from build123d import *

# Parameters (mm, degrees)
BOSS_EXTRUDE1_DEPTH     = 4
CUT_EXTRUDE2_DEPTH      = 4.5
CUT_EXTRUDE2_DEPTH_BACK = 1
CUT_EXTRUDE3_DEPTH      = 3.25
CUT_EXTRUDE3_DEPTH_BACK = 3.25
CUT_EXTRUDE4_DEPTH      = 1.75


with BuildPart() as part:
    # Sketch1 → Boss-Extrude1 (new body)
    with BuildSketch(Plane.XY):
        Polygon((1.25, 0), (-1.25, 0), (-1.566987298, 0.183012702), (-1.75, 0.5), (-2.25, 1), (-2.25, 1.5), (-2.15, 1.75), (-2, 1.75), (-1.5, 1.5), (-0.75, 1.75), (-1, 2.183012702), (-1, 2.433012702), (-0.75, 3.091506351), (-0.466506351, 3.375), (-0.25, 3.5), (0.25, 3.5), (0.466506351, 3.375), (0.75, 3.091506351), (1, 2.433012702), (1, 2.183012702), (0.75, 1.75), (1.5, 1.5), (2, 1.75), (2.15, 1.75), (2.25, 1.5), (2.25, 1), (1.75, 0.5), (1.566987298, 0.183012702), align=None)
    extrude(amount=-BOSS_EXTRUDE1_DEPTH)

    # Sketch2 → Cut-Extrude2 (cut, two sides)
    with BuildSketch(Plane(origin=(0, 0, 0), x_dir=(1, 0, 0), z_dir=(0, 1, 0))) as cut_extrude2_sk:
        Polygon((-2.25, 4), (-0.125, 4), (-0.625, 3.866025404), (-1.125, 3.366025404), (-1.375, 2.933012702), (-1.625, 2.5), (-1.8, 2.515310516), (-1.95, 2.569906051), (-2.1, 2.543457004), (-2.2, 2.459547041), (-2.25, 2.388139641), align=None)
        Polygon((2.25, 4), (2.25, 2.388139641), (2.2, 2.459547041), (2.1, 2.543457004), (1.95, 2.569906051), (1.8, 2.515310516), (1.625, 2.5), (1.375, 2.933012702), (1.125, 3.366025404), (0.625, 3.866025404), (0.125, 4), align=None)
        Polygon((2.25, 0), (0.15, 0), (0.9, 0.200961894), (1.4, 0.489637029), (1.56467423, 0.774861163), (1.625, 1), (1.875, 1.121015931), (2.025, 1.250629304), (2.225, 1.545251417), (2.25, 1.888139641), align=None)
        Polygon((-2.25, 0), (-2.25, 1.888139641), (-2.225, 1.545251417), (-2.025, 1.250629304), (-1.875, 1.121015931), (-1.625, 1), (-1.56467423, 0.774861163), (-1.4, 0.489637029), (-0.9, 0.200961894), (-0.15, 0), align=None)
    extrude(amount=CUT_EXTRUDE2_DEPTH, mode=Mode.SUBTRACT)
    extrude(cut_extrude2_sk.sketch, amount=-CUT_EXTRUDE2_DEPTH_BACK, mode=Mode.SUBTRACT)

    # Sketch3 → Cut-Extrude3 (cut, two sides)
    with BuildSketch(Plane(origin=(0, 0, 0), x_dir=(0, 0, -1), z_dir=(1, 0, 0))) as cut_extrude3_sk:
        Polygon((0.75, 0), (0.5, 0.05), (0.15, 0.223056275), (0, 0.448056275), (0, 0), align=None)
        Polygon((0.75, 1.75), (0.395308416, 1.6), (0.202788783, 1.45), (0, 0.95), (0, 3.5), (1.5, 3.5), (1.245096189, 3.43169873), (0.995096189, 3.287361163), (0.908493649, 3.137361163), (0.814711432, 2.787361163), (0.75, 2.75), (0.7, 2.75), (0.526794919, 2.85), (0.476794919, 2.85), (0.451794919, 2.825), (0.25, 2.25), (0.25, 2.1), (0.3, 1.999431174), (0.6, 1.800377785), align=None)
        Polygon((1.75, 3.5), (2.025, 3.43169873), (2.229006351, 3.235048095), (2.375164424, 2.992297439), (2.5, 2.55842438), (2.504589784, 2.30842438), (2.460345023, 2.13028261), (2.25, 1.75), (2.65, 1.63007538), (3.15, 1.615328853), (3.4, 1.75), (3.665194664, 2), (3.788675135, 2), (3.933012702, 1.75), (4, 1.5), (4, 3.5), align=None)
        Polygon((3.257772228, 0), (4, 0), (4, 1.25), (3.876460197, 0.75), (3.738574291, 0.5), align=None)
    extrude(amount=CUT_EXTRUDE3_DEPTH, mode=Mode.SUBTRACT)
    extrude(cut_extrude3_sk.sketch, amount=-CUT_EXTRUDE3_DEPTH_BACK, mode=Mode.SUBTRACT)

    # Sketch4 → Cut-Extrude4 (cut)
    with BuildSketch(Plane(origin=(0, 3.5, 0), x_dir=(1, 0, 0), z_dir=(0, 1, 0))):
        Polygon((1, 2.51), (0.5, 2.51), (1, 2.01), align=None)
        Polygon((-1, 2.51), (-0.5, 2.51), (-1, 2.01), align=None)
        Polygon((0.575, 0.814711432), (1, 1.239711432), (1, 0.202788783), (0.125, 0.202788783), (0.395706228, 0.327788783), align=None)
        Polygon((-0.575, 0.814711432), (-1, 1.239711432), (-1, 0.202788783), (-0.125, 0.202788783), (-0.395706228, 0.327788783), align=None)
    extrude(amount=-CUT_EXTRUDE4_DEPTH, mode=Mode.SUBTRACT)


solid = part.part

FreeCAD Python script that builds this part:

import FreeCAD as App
import Part
import Sketcher
from FreeCAD import Vector
Q = App.Units.Quantity

doc = App.newDocument("Part")
body = doc.addObject("PartDesign::Body", "Body")

sketch1 = body.newObject("Sketcher::SketchObject", "Sketch")
sketch1.AttachmentSupport = (doc.getObject("XY_Plane"), [""])
sketch1.MapMode = "FlatFace"
sketch1.addGeometry(Part.LineSegment(Vector(-1.25, 0, 0), Vector(1.25, 0, 0)), False)
sketch1.addGeometry(Part.LineSegment(Vector(1.25, 0, 0), Vector(1.566987, 0.183013, 0)), False)
sketch1.addGeometry(Part.LineSegment(Vector(1.566987, 0.183013, 0), Vector(1.75, 0.5, 0)), False)
sketch1.addGeometry(Part.LineSegment(Vector(1.75, 0.5, 0), Vector(2.25, 1, 0)), False)
sketch1.addGeometry(Part.LineSegment(Vector(2.25, 1, 0), Vector(2.25, 1.5, 0)), False)
sketch1.addGeometry(Part.LineSegment(Vector(2.25, 1.5, 0), Vector(2.15, 1.75, 0)), False)
sketch1.addGeometry(Part.LineSegment(Vector(2.15, 1.75, 0), Vector(2, 1.75, 0)), False)
sketch1.addGeometry(Part.LineSegment(Vector(2, 1.75, 0), Vector(1.5, 1.5, 0)), False)
sketch1.addGeometry(Part.LineSegment(Vector(1.5, 1.5, 0), Vector(0.75, 1.75, 0)), False)
sketch1.addGeometry(Part.LineSegment(Vector(0.75, 1.75, 0), Vector(1, 2.183013, 0)), False)
sketch1.addGeometry(Part.LineSegment(Vector(1, 2.183013, 0), Vector(1, 2.433013, 0)), False)
sketch1.addGeometry(Part.LineSegment(Vector(1, 2.433013, 0), Vector(0.75, 3.091506, 0)), False)
sketch1.addGeometry(Part.LineSegment(Vector(0.75, 3.091506, 0), Vector(0.466506, 3.375, 0)), False)
sketch1.addGeometry(Part.LineSegment(Vector(0.466506, 3.375, 0), Vector(0.25, 3.5, 0)), False)
sketch1.addGeometry(Part.LineSegment(Vector(0.25, 3.5, 0), Vector(-0.25, 3.5, 0)), False)
sketch1.addGeometry(Part.LineSegment(Vector(-0.25, 3.5, 0), Vector(-0.466506, 3.375, 0)), False)
sketch1.addGeometry(Part.LineSegment(Vector(-0.466506, 3.375, 0), Vector(-0.75, 3.091506, 0)), False)
sketch1.addGeometry(Part.LineSegment(Vector(-0.75, 3.091506, 0), Vector(-1, 2.433013, 0)), False)
sketch1.addGeometry(Part.LineSegment(Vector(-1, 2.433013, 0), Vector(-1, 2.183013, 0)), False)
sketch1.addGeometry(Part.LineSegment(Vector(-1, 2.183013, 0), Vector(-0.75, 1.75, 0)), False)
sketch1.addGeometry(Part.LineSegment(Vector(-0.75, 1.75, 0), Vector(-1.5, 1.5, 0)), False)
sketch1.addGeometry(Part.LineSegment(Vector(-1.5, 1.5, 0), Vector(-2, 1.75, 0)), False)
sketch1.addGeometry(Part.LineSegment(Vector(-2, 1.75, 0), Vector(-2.15, 1.75, 0)), False)
sketch1.addGeometry(Part.LineSegment(Vector(-2.15, 1.75, 0), Vector(-2.25, 1.5, 0)), False)
sketch1.addGeometry(Part.LineSegment(Vector(-2.25, 1.5, 0), Vector(-2.25, 1, 0)), False)
sketch1.addGeometry(Part.LineSegment(Vector(-2.25, 1, 0), Vector(-1.75, 0.5, 0)), False)
sketch1.addGeometry(Part.LineSegment(Vector(-1.75, 0.5, 0), Vector(-1.566987, 0.183013, 0)), False)
sketch1.addGeometry(Part.LineSegment(Vector(-1.566987, 0.183013, 0), Vector(-1.25, 0, 0)), False)
sketch1.addConstraint(Sketcher.Constraint("Coincident", 0, 2, 1, 1))
sketch1.addConstraint(Sketcher.Constraint("Coincident", 1, 2, 2, 1))
sketch1.addConstraint(Sketcher.Constraint("Coincident", 2, 2, 3, 1))
sketch1.addConstraint(Sketcher.Constraint("Coincident", 3, 2, 4, 1))
sketch1.addConstraint(Sketcher.Constraint("Coincident", 4, 2, 5, 1))
sketch1.addConstraint(Sketcher.Constraint("Coincident", 5, 2, 6, 1))
sketch1.addConstraint(Sketcher.Constraint("Coincident", 6, 2, 7, 1))
sketch1.addConstraint(Sketcher.Constraint("Coincident", 7, 2, 8, 1))
sketch1.addConstraint(Sketcher.Constraint("Coincident", 8, 2, 9, 1))
sketch1.addConstraint(Sketcher.Constraint("Coincident", 9, 2, 10, 1))
sketch1.addConstraint(Sketcher.Constraint("Coincident", 10, 2, 11, 1))
sketch1.addConstraint(Sketcher.Constraint("Coincident", 11, 2, 12, 1))
sketch1.addConstraint(Sketcher.Constraint("Coincident", 12, 2, 13, 1))
sketch1.addConstraint(Sketcher.Constraint("Coincident", 13, 2, 14, 1))
sketch1.addConstraint(Sketcher.Constraint("Coincident", 14, 2, 15, 1))
sketch1.addConstraint(Sketcher.Constraint("Coincident", 15, 2, 16, 1))
sketch1.addConstraint(Sketcher.Constraint("Coincident", 16, 2, 17, 1))
sketch1.addConstraint(Sketcher.Constraint("Coincident", 17, 2, 18, 1))
sketch1.addConstraint(Sketcher.Constraint("Coincident", 18, 2, 19, 1))
sketch1.addConstraint(Sketcher.Constraint("Coincident", 19, 2, 20, 1))
sketch1.addConstraint(Sketcher.Constraint("Coincident", 20, 2, 21, 1))
sketch1.addConstraint(Sketcher.Constraint("Coincident", 21, 2, 22, 1))
sketch1.addConstraint(Sketcher.Constraint("Coincident", 22, 2, 23, 1))
sketch1.addConstraint(Sketcher.Constraint("Coincident", 23, 2, 24, 1))
sketch1.addConstraint(Sketcher.Constraint("Coincident", 24, 2, 25, 1))
sketch1.addConstraint(Sketcher.Constraint("Coincident", 25, 2, 26, 1))
sketch1.addConstraint(Sketcher.Constraint("Coincident", 26, 2, 27, 1))
sketch1.addConstraint(Sketcher.Constraint("Coincident", 27, 2, 0, 1))
sketch1.addConstraint(Sketcher.Constraint("Horizontal", 0))
sketch1.addConstraint(Sketcher.Constraint("Vertical", 4))
sketch1.addConstraint(Sketcher.Constraint("Horizontal", 6))
sketch1.addConstraint(Sketcher.Constraint("Vertical", 10))
sketch1.addConstraint(Sketcher.Constraint("Horizontal", 14))
sketch1.addConstraint(Sketcher.Constraint("Vertical", 18))
sketch1.addConstraint(Sketcher.Constraint("Horizontal", 22))
sketch1.addConstraint(Sketcher.Constraint("Vertical", 24))
sketch1.addConstraint(Sketcher.Constraint("Symmetric", 0, 2, 27, 2, -1, 1))
sketch1.addConstraint(Sketcher.Constraint("Symmetric", 12, 2, 15, 2, -2))
sketch1.addConstraint(Sketcher.Constraint("Symmetric", 11, 2, 16, 2, -2))
sketch1.addConstraint(Sketcher.Constraint("Symmetric", 10, 2, 17, 2, -2))
sketch1.addConstraint(Sketcher.Constraint("Symmetric", 8, 2, 19, 2, -2))
sketch1.addConstraint(Sketcher.Constraint("Symmetric", 7, 2, 20, 2, -2))
sketch1.addConstraint(Sketcher.Constraint("Symmetric", 6, 2, 21, 2, -2))
sketch1.addConstraint(Sketcher.Constraint("Symmetric", 4, 2, 23, 2, -2))
sketch1.addConstraint(Sketcher.Constraint("Symmetric", 2, 2, 25, 2, -2))
sketch1.addConstraint(Sketcher.Constraint("Symmetric", 1, 2, 26, 2, -2))
sketch1.addConstraint(Sketcher.Constraint("Parallel", 2, 9))
sketch1.addConstraint(Sketcher.Constraint("Perpendicular", 3, 12))
sketch1.addConstraint(Sketcher.Constraint("Perpendicular", 9, 13))
sketch1.addConstraint(Sketcher.Constraint("Parallel", 1, 15))
sketch1.addConstraint(Sketcher.Constraint("Perpendicular", 12, 16))
sketch1.addConstraint(Sketcher.Constraint("Perpendicular", 15, 19))
sketch1.addConstraint(Sketcher.Constraint("Perpendicular", 16, 25))
sketch1.addConstraint(Sketcher.Constraint("Parallel", 19, 26))
sketch1.addConstraint(Sketcher.Constraint("Horizontal", 4, 2, 7, 2))
sketch1.addConstraint(Sketcher.Constraint("Horizontal", 6, 2, 8, 2))
sketch1.addConstraint(Sketcher.Constraint("Vertical", 8, 2, 11, 2))
sketch1.addConstraint(Sketcher.Constraint("Equal", 6, 22))
sketch1.addConstraint(Sketcher.Constraint("Equal", 14, 4))
sketch1.addConstraint(Sketcher.Constraint("Equal", 1, 2))
sketch1.addConstraint(Sketcher.Constraint("Angle", 1, Q("30 deg")))
sketch1.addConstraint(Sketcher.Constraint("DistanceX", 0, 1, 0, 2, Q("2.5 mm")))
sketch1.addConstraint(Sketcher.Constraint("DistanceX", 14, 2, 14, 1, Q("0.5 mm")))
sketch1.addConstraint(Sketcher.Constraint("DistanceY", -1, 1, 3, 2, Q("1 mm")))
sketch1.addConstraint(Sketcher.Constraint("DistanceX", -1, 1, 6, 2, Q("2 mm")))
sketch1.addConstraint(Sketcher.Constraint("DistanceX", -1, 1, 9, 2, Q("1 mm")))
sketch1.addConstraint(Sketcher.Constraint("DistanceY", 2, 2, 4, 2, Q("1 mm")))
sketch1.addConstraint(Sketcher.Constraint("DistanceX", 8, 2, 2, 2, Q("1 mm")))
sketch1.addConstraint(Sketcher.Constraint("DistanceX", 6, 2, 6, 1, Q("0.15 mm")))
sketch1.addConstraint(Sketcher.Constraint("DistanceY", 10, 1, 10, 2, Q("0.25 mm")))
sketch1.addConstraint(Sketcher.Constraint("DistanceX", -1, 1, 7, 2, Q("1.5 mm")))
sketch1.addConstraint(Sketcher.Constraint("DistanceY", -1, 1, 13, 2, Q("3.5 mm")))
sketch1.addConstraint(Sketcher.Constraint("Distance", 13, Q("0.25 mm")))
sketch1.addConstraint(Sketcher.Constraint("DistanceY", -1, 1, 5, 2, Q("1.75 mm")))
pad1 = body.newObject("PartDesign::Pad", "Pad")
pad1.Profile = sketch1
pad1.Length = 4
pad1.Reversed = True

sketch2 = body.newObject("Sketcher::SketchObject", "Sketch001")
sketch2.AttachmentSupport = (doc.getObject("XZ_Plane"), [""])
sketch2.MapMode = "FlatFace"
sketch2.addGeometry(Part.LineSegment(Vector(-0.125, -4, 0), Vector(-2.25, -4, 0)), False)
sketch2.addGeometry(Part.LineSegment(Vector(-2.25, -4, 0), Vector(-2.25, -2.38814, 0)), False)
sketch2.addGeometry(Part.LineSegment(Vector(-2.25, -2.38814, 0), Vector(-2.2, -2.459547, 0)), False)
sketch2.addGeometry(Part.LineSegment(Vector(-2.2, -2.459547, 0), Vector(-2.1, -2.543457, 0)), False)
sketch2.addGeometry(Part.LineSegment(Vector(-2.1, -2.543457, 0), Vector(-1.95, -2.569906, 0)), False)
sketch2.addGeometry(Part.LineSegment(Vector(-1.95, -2.569906, 0), Vector(-1.8, -2.515311, 0)), False)
sketch2.addGeometry(Part.LineSegment(Vector(-1.8, -2.515311, 0), Vector(-1.625, -2.5, 0)), False)
sketch2.addGeometry(Part.LineSegment(Vector(-1.625, -2.5, 0), Vector(-1.125, -3.366025, 0)), False)
sketch2.addGeometry(Part.LineSegment(Vector(-1.125, -3.366025, 0), Vector(-0.625, -3.866025, 0)), False)
sketch2.addGeometry(Part.LineSegment(Vector(-0.625, -3.866025, 0), Vector(-0.125, -4, 0)), False)
sketch2.addGeometry(Part.LineSegment(Vector(2.25, -2.38814, 0), Vector(2.25, -4, 0)), False)
sketch2.addGeometry(Part.LineSegment(Vector(2.25, -4, 0), Vector(0.125, -4, 0)), False)
sketch2.addGeometry(Part.LineSegment(Vector(0.125, -4, 0), Vector(0.625, -3.866025, 0)), False)
sketch2.addGeometry(Part.LineSegment(Vector(0.625, -3.866025, 0), Vector(1.125, -3.366025, 0)), False)
sketch2.addGeometry(Part.LineSegment(Vector(1.125, -3.366025, 0), Vector(1.625, -2.5, 0)), False)
sketch2.addGeometry(Part.LineSegment(Vector(1.625, -2.5, 0), Vector(1.8, -2.515311, 0)), False)
sketch2.addGeometry(Part.LineSegment(Vector(1.8, -2.515311, 0), Vector(1.95, -2.569906, 0)), False)
sketch2.addGeometry(Part.LineSegment(Vector(1.95, -2.569906, 0), Vector(2.1, -2.543457, 0)), False)
sketch2.addGeometry(Part.LineSegment(Vector(2.1, -2.543457, 0), Vector(2.2, -2.459547, 0)), False)
sketch2.addGeometry(Part.LineSegment(Vector(2.2, -2.459547, 0), Vector(2.25, -2.38814, 0)), False)
sketch2.addGeometry(Part.LineSegment(Vector(0.15, 0, 0), Vector(2.25, 0, 0)), False)
sketch2.addGeometry(Part.LineSegment(Vector(2.25, 0, 0), Vector(2.25, -1.88814, 0)), False)
sketch2.addGeometry(Part.LineSegment(Vector(2.25, -1.88814, 0), Vector(2.225, -1.545251, 0)), False)
sketch2.addGeometry(Part.LineSegment(Vector(2.225, -1.545251, 0), Vector(2.025, -1.250629, 0)), False)
sketch2.addGeometry(Part.LineSegment(Vector(2.025, -1.250629, 0), Vector(1.875, -1.121016, 0)), False)
sketch2.addGeometry(Part.LineSegment(Vector(1.875, -1.121016, 0), Vector(1.625, -1, 0)), False)
sketch2.addGeometry(Part.LineSegment(Vector(1.625, -1, 0), Vector(1.564674, -0.774861, 0)), False)
sketch2.addGeometry(Part.LineSegment(Vector(1.564674, -0.774861, 0), Vector(1.4, -0.489637, 0)), False)
sketch2.addGeometry(Part.LineSegment(Vector(1.4, -0.489637, 0), Vector(0.9, -0.200962, 0)), False)
sketch2.addGeometry(Part.LineSegment(Vector(0.9, -0.200962, 0), Vector(0.15, 0, 0)), False)
sketch2.addGeometry(Part.LineSegment(Vector(-2.25, -1.88814, 0), Vector(-2.25, 0, 0)), False)
sketch2.addGeometry(Part.LineSegment(Vector(-2.25, 0, 0), Vector(-0.15, 0, 0)), False)
sketch2.addGeometry(Part.LineSegment(Vector(-0.15, 0, 0), Vector(-0.9, -0.200962, 0)), False)
sketch2.addGeometry(Part.LineSegment(Vector(-0.9, -0.200962, 0), Vector(-1.4, -0.489637, 0)), False)
sketch2.addGeometry(Part.LineSegment(Vector(-1.4, -0.489637, 0), Vector(-1.564674, -0.774861, 0)), False)
sketch2.addGeometry(Part.LineSegment(Vector(-1.564674, -0.774861, 0), Vector(-1.625, -1, 0)), False)
sketch2.addGeometry(Part.LineSegment(Vector(-1.625, -1, 0), Vector(-1.875, -1.121016, 0)), False)
sketch2.addGeometry(Part.LineSegment(Vector(-1.875, -1.121016, 0), Vector(-2.025, -1.250629, 0)), False)
sketch2.addGeometry(Part.LineSegment(Vector(-2.025, -1.250629, 0), Vector(-2.225, -1.545251, 0)), False)
sketch2.addGeometry(Part.LineSegment(Vector(-2.225, -1.545251, 0), Vector(-2.25, -1.88814, 0)), False)
sketch2.addConstraint(Sketcher.Constraint("Coincident", 0, 2, 1, 1))
sketch2.addConstraint(Sketcher.Constraint("Coincident", 1, 2, 2, 1))
sketch2.addConstraint(Sketcher.Constraint("Coincident", 2, 2, 3, 1))
sketch2.addConstraint(Sketcher.Constraint("Coincident", 3, 2, 4, 1))
sketch2.addConstraint(Sketcher.Constraint("Coincident", 4, 2, 5, 1))
sketch2.addConstraint(Sketcher.Constraint("Coincident", 5, 2, 6, 1))
sketch2.addConstraint(Sketcher.Constraint("Coincident", 6, 2, 7, 1))
sketch2.addConstraint(Sketcher.Constraint("Coincident", 7, 2, 8, 1))
sketch2.addConstraint(Sketcher.Constraint("Coincident", 8, 2, 9, 1))
sketch2.addConstraint(Sketcher.Constraint("Coincident", 9, 2, 0, 1))
sketch2.addConstraint(Sketcher.Constraint("Coincident", 10, 2, 11, 1))
sketch2.addConstraint(Sketcher.Constraint("Coincident", 11, 2, 12, 1))
sketch2.addConstraint(Sketcher.Constraint("Coincident", 12, 2, 13, 1))
sketch2.addConstraint(Sketcher.Constraint("Coincident", 13, 2, 14, 1))
sketch2.addConstraint(Sketcher.Constraint("Coincident", 14, 2, 15, 1))
sketch2.addConstraint(Sketcher.Constraint("Coincident", 15, 2, 16, 1))
sketch2.addConstraint(Sketcher.Constraint("Coincident", 16, 2, 17, 1))
sketch2.addConstraint(Sketcher.Constraint("Coincident", 17, 2, 18, 1))
sketch2.addConstraint(Sketcher.Constraint("Coincident", 18, 2, 19, 1))
sketch2.addConstraint(Sketcher.Constraint("Coincident", 19, 2, 10, 1))
sketch2.addConstraint(Sketcher.Constraint("Coincident", 20, 2, 21, 1))
sketch2.addConstraint(Sketcher.Constraint("Coincident", 21, 2, 22, 1))
sketch2.addConstraint(Sketcher.Constraint("Coincident", 22, 2, 23, 1))
sketch2.addConstraint(Sketcher.Constraint("Coincident", 23, 2, 24, 1))
sketch2.addConstraint(Sketcher.Constraint("Coincident", 24, 2, 25, 1))
sketch2.addConstraint(Sketcher.Constraint("Coincident", 25, 2, 26, 1))
sketch2.addConstraint(Sketcher.Constraint("Coincident", 26, 2, 27, 1))
sketch2.addConstraint(Sketcher.Constraint("Coincident", 27, 2, 28, 1))
sketch2.addConstraint(Sketcher.Constraint("Coincident", 28, 2, 29, 1))
sketch2.addConstraint(Sketcher.Constraint("Coincident", 29, 2, 20, 1))
sketch2.addConstraint(Sketcher.Constraint("Coincident", 30, 2, 31, 1))
sketch2.addConstraint(Sketcher.Constraint("Coincident", 31, 2, 32, 1))
sketch2.addConstraint(Sketcher.Constraint("Coincident", 32, 2, 33, 1))
sketch2.addConstraint(Sketcher.Constraint("Coincident", 33, 2, 34, 1))
sketch2.addConstraint(Sketcher.Constraint("Coincident", 34, 2, 35, 1))
sketch2.addConstraint(Sketcher.Constraint("Coincident", 35, 2, 36, 1))
sketch2.addConstraint(Sketcher.Constraint("Coincident", 36, 2, 37, 1))
sketch2.addConstraint(Sketcher.Constraint("Coincident", 37, 2, 38, 1))
sketch2.addConstraint(Sketcher.Constraint("Coincident", 38, 2, 39, 1))
sketch2.addConstraint(Sketcher.Constraint("Coincident", 39, 2, 30, 1))
sketch2.addConstraint(Sketcher.Constraint("Horizontal", 0))
sketch2.addConstraint(Sketcher.Constraint("Vertical", 1))
sketch2.addConstraint(Sketcher.Constraint("Vertical", 10))
sketch2.addConstraint(Sketcher.Constraint("Horizontal", 11))
sketch2.addConstraint(Sketcher.Constraint("Horizontal", 20))
sketch2.addConstraint(Sketcher.Constraint("Vertical", 21))
sketch2.addConstraint(Sketcher.Constraint("Vertical", 30))
sketch2.addConstraint(Sketcher.Constraint("Horizontal", 31))
sketch2.addConstraint(Sketcher.Constraint("Symmetric", 20, 2, 30, 2, -1, 1))
sketch2.addConstraint(Sketcher.Constraint("Symmetric", 0, 2, 10, 2, -2))
sketch2.addConstraint(Sketcher.Constraint("Symmetric", 8, 2, 12, 2, -2))
sketch2.addConstraint(Sketcher.Constraint("Symmetric", 7, 2, 13, 2, -2))
sketch2.addConstraint(Sketcher.Constraint("Symmetric", 6, 2, 14, 2, -2))
sketch2.addConstraint(Sketcher.Constraint("Symmetric", 5, 2, 15, 2, -2))
sketch2.addConstraint(Sketcher.Constraint("Symmetric", 4, 2, 16, 2, -2))
sketch2.addConstraint(Sketcher.Constraint("Symmetric", 3, 2, 17, 2, -2))
sketch2.addConstraint(Sketcher.Constraint("Symmetric", 2, 2, 18, 2, -2))
sketch2.addConstraint(Sketcher.Constraint("Symmetric", 29, 2, 31, 2, -2))
sketch2.addConstraint(Sketcher.Constraint("Symmetric", 28, 2, 32, 2, -2))
sketch2.addConstraint(Sketcher.Constraint("Symmetric", 27, 2, 33, 2, -2))
sketch2.addConstraint(Sketcher.Constraint("Symmetric", 26, 2, 34, 2, -2))
sketch2.addConstraint(Sketcher.Constraint("Symmetric", 25, 2, 35, 2, -2))
sketch2.addConstraint(Sketcher.Constraint("Symmetric", 24, 2, 36, 2, -2))
sketch2.addConstraint(Sketcher.Constraint("Symmetric", 23, 2, 37, 2, -2))
sketch2.addConstraint(Sketcher.Constraint("Symmetric", 22, 2, 38, 2, -2))
sketch2.addConstraint(Sketcher.Constraint("Perpendicular", 8, 13))
sketch2.addConstraint(Sketcher.Constraint("Perpendicular", 12, 26))
sketch2.addConstraint(Sketcher.Constraint("Parallel", 7, 27))
sketch2.addConstraint(Sketcher.Constraint("Perpendicular", 14, 28))
sketch2.addConstraint(Sketcher.Constraint("Parallel", 9, 29))
sketch2.addConstraint(Sketcher.Constraint("Perpendicular", 26, 32))
sketch2.addConstraint(Sketcher.Constraint("Horizontal", 1, 2, 19, 2))
sketch2.addConstraint(Sketcher.Constraint("Horizontal", 21, 2, 39, 2))
sketch2.addConstraint(Sketcher.Constraint("Vertical", 19, 2, 20, 2))
sketch2.addConstraint(Sketcher.Constraint("Vertical", 14, 2, 25, 2))
sketch2.addConstraint(Sketcher.Constraint("Angle", 2, Q("-55 deg")))
sketch2.addConstraint(Sketcher.Constraint("Angle", 3, Q("-40 deg")))
sketch2.addConstraint(Sketcher.Constraint("Angle", 4, Q("-10 deg")))
sketch2.addConstraint(Sketcher.Constraint("Angle", 5, Q("20 deg")))
sketch2.addConstraint(Sketcher.Constraint("Angle", 6, Q("5 deg")))
sketch2.addConstraint(Sketcher.Constraint("Angle", 7, Q("-60 deg")))
sketch2.addConstraint(Sketcher.Constraint("Angle", 9, Q("-15 deg")))
sketch2.addConstraint(Sketcher.Constraint("Distance", 7, Q("1 mm")))
sketch2.addConstraint(Sketcher.Constraint("DistanceX", 20, 1, 20, 2, Q("2.1 mm")))
sketch2.addConstraint(Sketcher.Constraint("DistanceY", 0, 2, -1, 1, Q("4 mm")))
sketch2.addConstraint(Sketcher.Constraint("DistanceY", 25, 2, -1, 1, Q("1 mm")))
sketch2.addConstraint(Sketcher.Constraint("DistanceX", 6, 2, 8, 2, Q("1 mm")))
sketch2.addConstraint(Sketcher.Constraint("DistanceX", 7, 2, 9, 2, Q("1 mm")))
sketch2.addConstraint(Sketcher.Constraint("DistanceX", 2, 2, -1, 1, Q("2.2 mm")))
sketch2.addConstraint(Sketcher.Constraint("DistanceX", 3, 2, -1, 1, Q("2.1 mm")))
sketch2.addConstraint(Sketcher.Constraint("DistanceX", 5, 2, -1, 1, Q("1.8 mm")))
sketch2.addConstraint(Sketcher.Constraint("DistanceX", -1, 1, 27, 2, Q("1.4 mm")))
sketch2.addConstraint(Sketcher.Constraint("DistanceX", -1, 1, 28, 2, Q("0.9 mm")))
sketch2.addConstraint(Sketcher.Constraint("DistanceX", 1, 2, 4, 2, Q("0.3 mm")))
sketch2.addConstraint(Sketcher.Constraint("DistanceY", 19, 2, 21, 2, Q("0.5 mm")))
sketch2.addConstraint(Sketcher.Constraint("DistanceX", 23, 2, 22, 2, Q("0.2 mm")))
sketch2.addConstraint(Sketcher.Constraint("DistanceX", 25, 2, 23, 2, Q("0.4 mm")))
sketch2.addConstraint(Sketcher.Constraint("DistanceX", 30, 2, 29, 2, Q("2.4 mm")))
sketch2.addConstraint(Sketcher.Constraint("DistanceX", 0, 2, 0, 1, Q("2.125 mm")))
sketch2.addConstraint(Sketcher.Constraint("DistanceX", 24, 2, 23, 2, Q("0.15 mm")))
sketch2.addConstraint(Sketcher.Constraint("Distance", 22, Q("0.343798 mm")))
sketch2.addConstraint(Sketcher.Constraint("Distance", 24, Q("0.198241 mm")))
sketch2.addConstraint(Sketcher.Constraint("Distance", 25, Q("0.27775 mm")))
pocket1 = body.newObject("PartDesign::Pocket", "Pocket")
pocket1.Profile = sketch2
pocket1.Type = "ThroughAll"
pocket1.Midplane = True

sketch3 = body.newObject("Sketcher::SketchObject", "Sketch002")
sketch3.AttachmentSupport = (doc.getObject("YZ_Plane"), [""])
sketch3.MapMode = "FlatFace"
sketch3.addGeometry(Part.LineSegment(Vector(0, -0.75, 0), Vector(0.05, -0.5, 0)), False)
sketch3.addGeometry(Part.LineSegment(Vector(0.05, -0.5, 0), Vector(0.223056, -0.15, 0)), False)
sketch3.addGeometry(Part.LineSegment(Vector(0.223056, -0.15, 0), Vector(0.448056, 0, 0)), False)
sketch3.addGeometry(Part.LineSegment(Vector(0.448056, 0, 0), Vector(0, 0, 0)), False)
sketch3.addGeometry(Part.LineSegment(Vector(0, 0, 0), Vector(0, -0.75, 0)), False)
sketch3.addGeometry(Part.LineSegment(Vector(1.6, -0.395308, 0), Vector(1.75, -0.75, 0)), False)
sketch3.addGeometry(Part.LineSegment(Vector(1.75, -0.75, 0), Vector(1.800378, -0.6, 0)), False)
sketch3.addGeometry(Part.LineSegment(Vector(1.800378, -0.6, 0), Vector(1.999431, -0.3, 0)), False)
sketch3.addGeometry(Part.LineSegment(Vector(1.999431, -0.3, 0), Vector(2.1, -0.25, 0)), False)
sketch3.addGeometry(Part.LineSegment(Vector(2.1, -0.25, 0), Vector(2.25, -0.25, 0)), False)
sketch3.addGeometry(Part.LineSegment(Vector(2.25, -0.25, 0), Vector(2.825, -0.451795, 0)), False)
sketch3.addGeometry(Part.LineSegment(Vector(2.825, -0.451795, 0), Vector(2.85, -0.476795, 0)), False)
sketch3.addGeometry(Part.LineSegment(Vector(2.85, -0.476795, 0), Vector(2.85, -0.526795, 0)), False)
sketch3.addGeometry(Part.LineSegment(Vector(2.85, -0.526795, 0), Vector(2.75, -0.7, 0)), False)
sketch3.addGeometry(Part.LineSegment(Vector(2.75, -0.7, 0), Vector(2.75, -0.75, 0)), False)
sketch3.addGeometry(Part.LineSegment(Vector(2.75, -0.75, 0), Vector(2.787361, -0.814711, 0)), False)
sketch3.addGeometry(Part.LineSegment(Vector(2.787361, -0.814711, 0), Vector(3.137361, -0.908494, 0)), False)
sketch3.addGeometry(Part.LineSegment(Vector(3.137361, -0.908494, 0), Vector(3.287361, -0.995096, 0)), False)
sketch3.addGeometry(Part.LineSegment(Vector(3.287361, -0.995096, 0), Vector(3.431699, -1.245096, 0)), False)
sketch3.addGeometry(Part.LineSegment(Vector(3.431699, -1.245096, 0), Vector(3.5, -1.5, 0)), False)
sketch3.addGeometry(Part.LineSegment(Vector(3.5, -1.5, 0), Vector(3.5, 0, 0)), False)
sketch3.addGeometry(Part.LineSegment(Vector(3.5, 0, 0), Vector(0.95, 0, 0)), False)
sketch3.addGeometry(Part.LineSegment(Vector(0.95, 0, 0), Vector(1.45, -0.202789, 0)), False)
sketch3.addGeometry(Part.LineSegment(Vector(1.45, -0.202789, 0), Vector(1.6, -0.395308, 0)), False)
sketch3.addGeometry(Part.LineSegment(Vector(3.5, -1.75, 0), Vector(3.431699, -2.025, 0)), False)
sketch3.addGeometry(Part.LineSegment(Vector(3.431699, -2.025, 0), Vector(3.235048, -2.229006, 0)), False)
sketch3.addGeometry(Part.LineSegment(Vector(3.235048, -2.229006, 0), Vector(2.992297, -2.375164, 0)), False)
sketch3.addGeometry(Part.LineSegment(Vector(2.992297, -2.375164, 0), Vector(2.558424, -2.5, 0)), False)
sketch3.addGeometry(Part.LineSegment(Vector(2.558424, -2.5, 0), Vector(2.308424, -2.50459, 0)), False)
sketch3.addGeometry(Part.LineSegment(Vector(2.308424, -2.50459, 0), Vector(2.130283, -2.460345, 0)), False)
sketch3.addGeometry(Part.LineSegment(Vector(2.130283, -2.460345, 0), Vector(1.75, -2.25, 0)), False)
sketch3.addGeometry(Part.LineSegment(Vector(1.75, -2.25, 0), Vector(1.630075, -2.65, 0)), False)
sketch3.addGeometry(Part.LineSegment(Vector(1.630075, -2.65, 0), Vector(1.615329, -3.15, 0)), False)
sketch3.addGeometry(Part.LineSegment(Vector(1.615329, -3.15, 0), Vector(1.75, -3.4, 0)), False)
sketch3.addGeometry(Part.LineSegment(Vector(1.75, -3.4, 0), Vector(2, -3.665195, 0)), False)
sketch3.addGeometry(Part.LineSegment(Vector(2, -3.665195, 0), Vector(2, -3.788675, 0)), False)
sketch3.addGeometry(Part.LineSegment(Vector(2, -3.788675, 0), Vector(1.75, -3.933013, 0)), False)
sketch3.addGeometry(Part.LineSegment(Vector(1.75, -3.933013, 0), Vector(1.5, -4, 0)), False)
sketch3.addGeometry(Part.LineSegment(Vector(1.5, -4, 0), Vector(3.5, -4, 0)), False)
sketch3.addGeometry(Part.LineSegment(Vector(3.5, -4, 0), Vector(3.5, -1.75, 0)), False)
sketch3.addGeometry(Part.LineSegment(Vector(0, -3.257772, 0), Vector(0, -4, 0)), False)
sketch3.addGeometry(Part.LineSegment(Vector(0, -4, 0), Vector(1.25, -4, 0)), False)
sketch3.addGeometry(Part.LineSegment(Vector(1.25, -4, 0), Vector(0.75, -3.87646, 0)), False)
sketch3.addGeometry(Part.LineSegment(Vector(0.75, -3.87646, 0), Vector(0.5, -3.738574, 0)), False)
sketch3.addGeometry(Part.LineSegment(Vector(0.5, -3.738574, 0), Vector(0, -3.257772, 0)), False)
sketch3.addConstraint(Sketcher.Constraint("Coincident", 0, 2, 1, 1))
sketch3.addConstraint(Sketcher.Constraint("Coincident", 1, 2, 2, 1))
sketch3.addConstraint(Sketcher.Constraint("Coincident", 2, 2, 3, 1))
sketch3.addConstraint(Sketcher.Constraint("Coincident", 3, 2, 4, 1))
sketch3.addConstraint(Sketcher.Constraint("Coincident", 4, 2, 0, 1))
sketch3.addConstraint(Sketcher.Constraint("Coincident", 5, 2, 6, 1))
sketch3.addConstraint(Sketcher.Constraint("Coincident", 6, 2, 7, 1))
sketch3.addConstraint(Sketcher.Constraint("Coincident", 7, 2, 8, 1))
sketch3.addConstraint(Sketcher.Constraint("Coincident", 8, 2, 9, 1))
sketch3.addConstraint(Sketcher.Constraint("Coincident", 9, 2, 10, 1))
sketch3.addConstraint(Sketcher.Constraint("Coincident", 10, 2, 11, 1))
sketch3.addConstraint(Sketcher.Constraint("Coincident", 11, 2, 12, 1))
sketch3.addConstraint(Sketcher.Constraint("Coincident", 12, 2, 13, 1))
sketch3.addConstraint(Sketcher.Constraint("Coincident", 13, 2, 14, 1))
sketch3.addConstraint(Sketcher.Constraint("Coincident", 14, 2, 15, 1))
sketch3.addConstraint(Sketcher.Constraint("Coincident", 15, 2, 16, 1))
sketch3.addConstraint(Sketcher.Constraint("Coincident", 16, 2, 17, 1))
sketch3.addConstraint(Sketcher.Constraint("Coincident", 17, 2, 18, 1))
sketch3.addConstraint(Sketcher.Constraint("Coincident", 18, 2, 19, 1))
sketch3.addConstraint(Sketcher.Constraint("Coincident", 19, 2, 20, 1))
sketch3.addConstraint(Sketcher.Constraint("Coincident", 20, 2, 21, 1))
sketch3.addConstraint(Sketcher.Constraint("Coincident", 21, 2, 22, 1))
sketch3.addConstraint(Sketcher.Constraint("Coincident", 22, 2, 23, 1))
sketch3.addConstraint(Sketcher.Constraint("Coincident", 23, 2, 5, 1))
sketch3.addConstraint(Sketcher.Constraint("Coincident", 24, 2, 25, 1))
sketch3.addConstraint(Sketcher.Constraint("Coincident", 25, 2, 26, 1))
sketch3.addConstraint(Sketcher.Constraint("Coincident", 26, 2, 27, 1))
sketch3.addConstraint(Sketcher.Constraint("Coincident", 27, 2, 28, 1))
sketch3.addConstraint(Sketcher.Constraint("Coincident", 28, 2, 29, 1))
sketch3.addConstraint(Sketcher.Constraint("Coincident", 29, 2, 30, 1))
sketch3.addConstraint(Sketcher.Constraint("Coincident", 30, 2, 31, 1))
sketch3.addConstraint(Sketcher.Constraint("Coincident", 31, 2, 32, 1))
sketch3.addConstraint(Sketcher.Constraint("Coincident", 32, 2, 33, 1))
sketch3.addConstraint(Sketcher.Constraint("Coincident", 33, 2, 34, 1))
sketch3.addConstraint(Sketcher.Constraint("Coincident", 34, 2, 35, 1))
sketch3.addConstraint(Sketcher.Constraint("Coincident", 35, 2, 36, 1))
sketch3.addConstraint(Sketcher.Constraint("Coincident", 36, 2, 37, 1))
sketch3.addConstraint(Sketcher.Constraint("Coincident", 37, 2, 38, 1))
sketch3.addConstraint(Sketcher.Constraint("Coincident", 38, 2, 39, 1))
sketch3.addConstraint(Sketcher.Constraint("Coincident", 39, 2, 24, 1))
sketch3.addConstraint(Sketcher.Constraint("Coincident", 40, 2, 41, 1))
sketch3.addConstraint(Sketcher.Constraint("Coincident", 41, 2, 42, 1))
sketch3.addConstraint(Sketcher.Constraint("Coincident", 42, 2, 43, 1))
sketch3.addConstraint(Sketcher.Constraint("Coincident", 43, 2, 44, 1))
sketch3.addConstraint(Sketcher.Constraint("Coincident", 44, 2, 40, 1))
sketch3.addConstraint(Sketcher.Constraint("Horizontal", 3))
sketch3.addConstraint(Sketcher.Constraint("Vertical", 4))
sketch3.addConstraint(Sketcher.Constraint("Horizontal", 9))
sketch3.addConstraint(Sketcher.Constraint("Vertical", 12))
sketch3.addConstraint(Sketcher.Constraint("Vertical", 14))
sketch3.addConstraint(Sketcher.Constraint("Vertical", 20))
sketch3.addConstraint(Sketcher.Constraint("Horizontal", 21))
sketch3.addConstraint(Sketcher.Constraint("Vertical", 35))
sketch3.addConstraint(Sketcher.Constraint("Horizontal", 38))
sketch3.addConstraint(Sketcher.Constraint("Vertical", 39))
sketch3.addConstraint(Sketcher.Constraint("Vertical", 40))
sketch3.addConstraint(Sketcher.Constraint("Horizontal", 41))
sketch3.addConstraint(Sketcher.Constraint("Coincident", 3, 2, -1, 1))
sketch3.addConstraint(Sketcher.Constraint("PointOnObject", 20, 2, -1))
sketch3.addConstraint(Sketcher.Constraint("PointOnObject", 40, 2, -2))
sketch3.addConstraint(Sketcher.Constraint("Perpendicular", 13, 17))
sketch3.addConstraint(Sketcher.Constraint("Parallel", 15, 18))
sketch3.addConstraint(Sketcher.Constraint("Perpendicular", 24, 29))
sketch3.addConstraint(Sketcher.Constraint("Perpendicular", 18, 36))
sketch3.addConstraint(Sketcher.Constraint("Perpendicular", 19, 37))
sketch3.addConstraint(Sketcher.Constraint("Horizontal", 4, 2, 5, 2))
sketch3.addConstraint(Sketcher.Constraint("Horizontal", 5, 2, 14, 2))
sketch3.addConstraint(Sketcher.Constraint("Horizontal", 38, 2, 40, 2))
sketch3.addConstraint(Sketcher.Constraint("Vertical", 18, 2, 24, 2))
sketch3.addConstraint(Sketcher.Constraint("Vertical", 5, 2, 30, 2))
sketch3.addConstraint(Sketcher.Constraint("Vertical", 30, 2, 33, 2))
sketch3.addConstraint(Sketcher.Constraint("Vertical", 33, 2, 36, 2))
sketch3.addConstraint(Sketcher.Constraint("Vertical", 20, 2, 38, 2))
sketch3.addConstraint(Sketcher.Constraint("Equal", 12, 14))
sketch3.addConstraint(Sketcher.Constraint("Equal", 24, 25))
sketch3.addConstraint(Sketcher.Constraint("Equal", 25, 26))
sketch3.addConstraint(Sketcher.Constraint("Equal", 18, 36))
sketch3.addConstraint(Sketcher.Constraint("DistanceX", 38, 1, 38, 2, Q("2 mm")))
sketch3.addConstraint(Sketcher.Constraint("Angle", 11, Q("-45 deg")))
sketch3.addConstraint(Sketcher.Constraint("Angle", 13, Q("-120 deg")))
sketch3.addConstraint(Sketcher.Constraint("Angle", 15, Q("-60 deg")))
sketch3.addConstraint(Sketcher.Constraint("Angle", 16, Q("-15 deg")))
sketch3.addConstraint(Sketcher.Constraint("Angle", 19, Q("-75 deg")))
sketch3.addConstraint(Sketcher.Constraint("DistanceY", 20, 1, 20, 2, Q("1.5 mm")))
sketch3.addConstraint(Sketcher.Constraint("DistanceX", -1, 1, 34, 2, Q("2 mm")))
sketch3.addConstraint(Sketcher.Constraint("DistanceY", 37, 2, -1, 1, Q("4 mm")))
sketch3.addConstraint(Sketcher.Constraint("DistanceY", 27, 2, 19, 2, Q("1 mm")))
sketch3.addConstraint(Sketcher.Constraint("DistanceX", 42, 2, 36, 2, Q("1 mm")))
sketch3.addConstraint(Sketcher.Constraint("DistanceX", 43, 2, 37, 2, Q("1 mm")))
sketch3.addConstraint(Sketcher.Constraint("Distance", 13, Q("0.2 mm")))
sketch3.addConstraint(Sketcher.Constraint("DistanceX", 9, 1, 9, 2, Q("0.15 mm")))
sketch3.addConstraint(Sketcher.Constraint("DistanceX", 21, 2, 21, 1, Q("2.55 mm")))
sketch3.addConstraint(Sketcher.Constraint("DistanceX", 41, 1, 41, 2, Q("1.25 mm")))
sketch3.addConstraint(Sketcher.Constraint("DistanceY", 4, 2, 4, 1, Q("0.75 mm")))
sketch3.addConstraint(Sketcher.Constraint("DistanceY", 12, 2, 12, 1, Q("0.05 mm")))
sketch3.addConstraint(Sketcher.Constraint("DistanceY", 39, 1, 39, 2, Q("2.25 mm")))
sketch3.addConstraint(Sketcher.Constraint("DistanceY", 0, 2, -1, 1, Q("0.5 mm")))
sketch3.addConstraint(Sketcher.Constraint("DistanceY", 6, 2, -1, 1, Q("0.6 mm")))
sketch3.addConstraint(Sketcher.Constraint("DistanceY", 7, 2, -1, 1, Q("0.3 mm")))
sketch3.addConstraint(Sketcher.Constraint("DistanceX", -1, 1, 8, 2, Q("2.1 mm")))
sketch3.addConstraint(Sketcher.Constraint("DistanceX", -1, 1, 19, 2, Q("3.5 mm")))
sketch3.addConstraint(Sketcher.Constraint("DistanceX", -1, 1, 23, 2, Q("1.6 mm")))
sketch3.addConstraint(Sketcher.Constraint("DistanceY", 33, 2, -1, 1, Q("3.4 mm")))
sketch3.addConstraint(Sketcher.Constraint("DistanceY", 4, 2, 1, 2, Q("0.6 mm")))
sketch3.addConstraint(Sketcher.Constraint("DistanceX", 0, 2, 5, 2, Q("1.7 mm")))
sketch3.addConstraint(Sketcher.Constraint("DistanceY", 5, 2, 8, 2, Q("0.5 mm")))
sketch3.addConstraint(Sketcher.Constraint("DistanceX", 5, 2, 9, 2, Q("0.5 mm")))
sketch3.addConstraint(Sketcher.Constraint("DistanceX", 9, 2, 11, 2, Q("0.6 mm")))
sketch3.addConstraint(Sketcher.Constraint("DistanceX", 15, 2, 17, 2, Q("0.5 mm")))
sketch3.addConstraint(Sketcher.Constraint("DistanceX", 21, 2, 22, 2, Q("0.5 mm")))
sketch3.addConstraint(Sketcher.Constraint("DistanceY", 31, 2, 30, 2, Q("0.4 mm")))
sketch3.addConstraint(Sketcher.Constraint("DistanceY", 32, 2, 31, 2, Q("0.5 mm")))
sketch3.addConstraint(Sketcher.Constraint("DistanceY", 30, 2, -1, 1, Q("2.25 mm")))
sketch3.addConstraint(Sketcher.Constraint("DistanceX", 15, 2, 16, 2, Q("0.35 mm")))
sketch3.addConstraint(Sketcher.Constraint("DistanceX", 28, 2, 27, 2, Q("0.25 mm")))
sketch3.addConstraint(Sketcher.Constraint("DistanceX", -1, 1, 10, 2, Q("2.825 mm")))
sketch3.addConstraint(Sketcher.Constraint("DistanceY", 24, 2, -1, 1, Q("2.025 mm")))
sketch3.addConstraint(Sketcher.Constraint("DistanceX", 1, 2, 2, 2, Q("0.225 mm")))
sketch3.addConstraint(Sketcher.Constraint("DistanceY", 35, 2, 35, 1, Q("0.12348 mm")))
sketch3.addConstraint(Sketcher.Constraint("DistanceX", 26, 2, 24, 2, Q("0.439401 mm")))
sketch3.addConstraint(Sketcher.Constraint("Distance", 7, Q("0.360031 mm")))
sketch3.addConstraint(Sketcher.Constraint("Distance", 22, Q("0.539558 mm")))
sketch3.addConstraint(Sketcher.Constraint("Distance", 30, Q("0.43458 mm")))
sketch3.addConstraint(Sketcher.Constraint("Distance", 31, Q("0.417591 mm")))
sketch3.addConstraint(Sketcher.Constraint("DistanceX", 3, 2, 3, 1, Q("0.448056 mm")))
sketch3.addConstraint(Sketcher.Constraint("DistanceY", 40, 2, 40, 1, Q("0.742228 mm")))
sketch3.addConstraint(Sketcher.Constraint("DistanceX", -1, 1, 7, 2, Q("1.999431 mm")))
sketch3.addConstraint(Sketcher.Constraint("DistanceY", 23, 2, -1, 1, Q("0.395308 mm")))
sketch3.addConstraint(Sketcher.Constraint("DistanceX", -1, 1, 25, 2, Q("3.235048 mm")))
sketch3.addConstraint(Sketcher.Constraint("DistanceY", 28, 2, -1, 1, Q("2.50459 mm")))
sketch3.addConstraint(Sketcher.Constraint("DistanceX", -1, 1, 32, 2, Q("1.615329 mm")))
sketch3.addConstraint(Sketcher.Constraint("DistanceY", 42, 2, -1, 1, Q("3.87646 mm")))
sketch3.addConstraint(Sketcher.Constraint("DistanceX", 29, 2, 28, 2, Q("0.178142 mm")))
sketch3.addConstraint(Sketcher.Constraint("Distance", 43, Q("0.285504 mm")))
pocket2 = body.newObject("PartDesign::Pocket", "Pocket001")
pocket2.Profile = sketch3
pocket2.Type = "ThroughAll"
pocket2.Midplane = True

sketch4 = body.newObject("Sketcher::SketchObject", "Sketch003")
sketch4.AttachmentSupport = (doc.getObject("XZ_Plane"), [""])
sketch4.MapMode = "FlatFace"
sketch4.AttachmentOffset = App.Placement(Vector(0, 0, -3.5), App.Rotation())
sketch4.addGeometry(Part.LineSegment(Vector(1, -2.51, 0), Vector(0.5, -2.51, 0)), False)
sketch4.addGeometry(Part.LineSegment(Vector(0.5, -2.51, 0), Vector(1, -2.01, 0)), False)
sketch4.addGeometry(Part.LineSegment(Vector(1, -2.01, 0), Vector(1, -2.51, 0)), False)
sketch4.addGeometry(Part.LineSegment(Vector(-0.5, -2.51, 0), Vector(-1, -2.51, 0)), False)
sketch4.addGeometry(Part.LineSegment(Vector(-1, -2.51, 0), Vector(-1, -2.01, 0)), False)
sketch4.addGeometry(Part.LineSegment(Vector(-1, -2.01, 0), Vector(-0.5, -2.51, 0)), False)
sketch4.addGeometry(Part.LineSegment(Vector(1, -1.239711, 0), Vector(0.575, -0.814711, 0)), False)
sketch4.addGeometry(Part.LineSegment(Vector(0.575, -0.814711, 0), Vector(0.395706, -0.327789, 0)), False)
sketch4.addGeometry(Part.LineSegment(Vector(0.395706, -0.327789, 0), Vector(0.125, -0.202789, 0)), False)
sketch4.addGeometry(Part.LineSegment(Vector(0.125, -0.202789, 0), Vector(1, -0.202789, 0)), False)
sketch4.addGeometry(Part.LineSegment(Vector(1, -0.202789, 0), Vector(1, -1.239711, 0)), False)
sketch4.addGeometry(Part.LineSegment(Vector(-0.575, -0.814711, 0), Vector(-1, -1.239711, 0)), False)
sketch4.addGeometry(Part.LineSegment(Vector(-1, -1.239711, 0), Vector(-1, -0.202789, 0)), False)
sketch4.addGeometry(Part.LineSegment(Vector(-1, -0.202789, 0), Vector(-0.125, -0.202789, 0)), False)
sketch4.addGeometry(Part.LineSegment(Vector(-0.125, -0.202789, 0), Vector(-0.395706, -0.327789, 0)), False)
sketch4.addGeometry(Part.LineSegment(Vector(-0.395706, -0.327789, 0), Vector(-0.575, -0.814711, 0)), False)
sketch4.addConstraint(Sketcher.Constraint("Coincident", 0, 2, 1, 1))
sketch4.addConstraint(Sketcher.Constraint("Coincident", 1, 2, 2, 1))
sketch4.addConstraint(Sketcher.Constraint("Coincident", 2, 2, 0, 1))
sketch4.addConstraint(Sketcher.Constraint("Coincident", 3, 2, 4, 1))
sketch4.addConstraint(Sketcher.Constraint("Coincident", 4, 2, 5, 1))
sketch4.addConstraint(Sketcher.Constraint("Coincident", 5, 2, 3, 1))
sketch4.addConstraint(Sketcher.Constraint("Coincident", 6, 2, 7, 1))
sketch4.addConstraint(Sketcher.Constraint("Coincident", 7, 2, 8, 1))
sketch4.addConstraint(Sketcher.Constraint("Coincident", 8, 2, 9, 1))
sketch4.addConstraint(Sketcher.Constraint("Coincident", 9, 2, 10, 1))
sketch4.addConstraint(Sketcher.Constraint("Coincident", 10, 2, 6, 1))
sketch4.addConstraint(Sketcher.Constraint("Coincident", 11, 2, 12, 1))
sketch4.addConstraint(Sketcher.Constraint("Coincident", 12, 2, 13, 1))
sketch4.addConstraint(Sketcher.Constraint("Coincident", 13, 2, 14, 1))
sketch4.addConstraint(Sketcher.Constraint("Coincident", 14, 2, 15, 1))
sketch4.addConstraint(Sketcher.Constraint("Coincident", 15, 2, 11, 1))
sketch4.addConstraint(Sketcher.Constraint("Horizontal", 0))
sketch4.addConstraint(Sketcher.Constraint("Vertical", 2))
sketch4.addConstraint(Sketcher.Constraint("Horizontal", 3))
sketch4.addConstraint(Sketcher.Constraint("Vertical", 4))
sketch4.addConstraint(Sketcher.Constraint("Horizontal", 9))
sketch4.addConstraint(Sketcher.Constraint("Vertical", 10))
sketch4.addConstraint(Sketcher.Constraint("Vertical", 12))
sketch4.addConstraint(Sketcher.Constraint("Horizontal", 13))
sketch4.addConstraint(Sketcher.Constraint("Symmetric", 2, 2, 3, 2, -2))
sketch4.addConstraint(Sketcher.Constraint("Symmetric", 10, 2, 11, 2, -2))
sketch4.addConstraint(Sketcher.Constraint("Symmetric", 8, 2, 13, 2, -2))
sketch4.addConstraint(Sketcher.Constraint("Symmetric", 7, 2, 14, 2, -2))
sketch4.addConstraint(Sketcher.Constraint("Symmetric", 6, 2, 15, 2, -2))
sketch4.addConstraint(Sketcher.Constraint("Perpendicular", 1, 5))
sketch4.addConstraint(Sketcher.Constraint("Parallel", 5, 6))
sketch4.addConstraint(Sketcher.Constraint("Perpendicular", 6, 11))
sketch4.addConstraint(Sketcher.Constraint("Horizontal", 1, 2, 4, 2))
sketch4.addConstraint(Sketcher.Constraint("Vertical", 2, 2, 9, 2))
sketch4.addConstraint(Sketcher.Constraint("DistanceX", 0, 2, 0, 1, Q("0.5 mm")))
sketch4.addConstraint(Sketcher.Constraint("DistanceX", -1, 1, 1, 2, Q("1 mm")))
sketch4.addConstraint(Sketcher.Constraint("DistanceX", 13, 2, 6, 2, Q("0.7 mm")))
sketch4.addConstraint(Sketcher.Constraint("DistanceX", 9, 1, 9, 2, Q("0.875 mm")))
sketch4.addConstraint(Sketcher.Constraint("DistanceY", 0, 2, -1, 1, Q("2.51 mm")))
sketch4.addConstraint(Sketcher.Constraint("DistanceY", 7, 2, 8, 2, Q("0.125 mm")))
sketch4.addConstraint(Sketcher.Constraint("DistanceY", 10, 2, 10, 1, Q("1.036923 mm")))
sketch4.addConstraint(Sketcher.Constraint("DistanceY", 6, 2, -1, 1, Q("0.814711 mm")))
sketch4.addConstraint(Sketcher.Constraint("Distance", 7, Q("0.518883 mm")))
pocket3 = body.newObject("PartDesign::Pocket", "Pocket002")
pocket3.Profile = sketch4
pocket3.Length = 1.75
pocket3.Reversed = True

doc.recompute()
